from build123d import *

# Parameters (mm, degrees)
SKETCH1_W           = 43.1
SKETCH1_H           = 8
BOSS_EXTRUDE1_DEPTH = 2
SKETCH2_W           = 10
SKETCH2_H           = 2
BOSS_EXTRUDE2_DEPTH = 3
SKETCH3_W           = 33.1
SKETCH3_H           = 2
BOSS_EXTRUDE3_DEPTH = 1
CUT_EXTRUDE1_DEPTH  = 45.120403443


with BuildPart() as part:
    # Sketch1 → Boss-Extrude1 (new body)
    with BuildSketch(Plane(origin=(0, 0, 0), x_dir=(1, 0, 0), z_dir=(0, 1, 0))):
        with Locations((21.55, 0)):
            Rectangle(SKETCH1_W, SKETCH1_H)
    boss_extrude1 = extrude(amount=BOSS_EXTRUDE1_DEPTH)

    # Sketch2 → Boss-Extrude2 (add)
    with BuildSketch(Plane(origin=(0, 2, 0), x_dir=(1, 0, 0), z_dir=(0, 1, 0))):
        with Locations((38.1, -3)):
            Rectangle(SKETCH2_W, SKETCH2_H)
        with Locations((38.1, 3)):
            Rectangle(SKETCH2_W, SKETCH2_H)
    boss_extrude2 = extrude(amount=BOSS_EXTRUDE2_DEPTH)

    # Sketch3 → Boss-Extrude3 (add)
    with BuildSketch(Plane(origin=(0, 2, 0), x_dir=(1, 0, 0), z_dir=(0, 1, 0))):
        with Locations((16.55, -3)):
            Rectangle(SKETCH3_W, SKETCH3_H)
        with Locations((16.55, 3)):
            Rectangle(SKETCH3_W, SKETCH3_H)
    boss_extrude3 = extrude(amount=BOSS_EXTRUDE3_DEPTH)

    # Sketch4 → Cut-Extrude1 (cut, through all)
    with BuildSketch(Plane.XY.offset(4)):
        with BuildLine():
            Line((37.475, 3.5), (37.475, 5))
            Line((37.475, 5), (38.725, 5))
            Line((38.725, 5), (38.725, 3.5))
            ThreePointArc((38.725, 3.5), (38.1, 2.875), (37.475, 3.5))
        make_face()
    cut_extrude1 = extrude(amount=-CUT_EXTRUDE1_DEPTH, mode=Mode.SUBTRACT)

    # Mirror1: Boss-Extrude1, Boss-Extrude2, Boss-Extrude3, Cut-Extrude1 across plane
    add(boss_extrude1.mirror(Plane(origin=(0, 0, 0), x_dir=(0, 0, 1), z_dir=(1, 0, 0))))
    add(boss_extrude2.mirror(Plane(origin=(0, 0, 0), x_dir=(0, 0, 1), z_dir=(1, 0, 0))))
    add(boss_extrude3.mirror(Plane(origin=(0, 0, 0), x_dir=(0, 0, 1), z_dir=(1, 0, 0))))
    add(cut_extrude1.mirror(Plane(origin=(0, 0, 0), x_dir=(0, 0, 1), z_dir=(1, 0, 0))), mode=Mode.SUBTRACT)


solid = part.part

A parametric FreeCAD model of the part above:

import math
import FreeCAD as App
import Part
import Sketcher

doc = App.newDocument("Part")
body = doc.addObject("PartDesign::Body", "Body")

# Sketch on XZ plane
sketch1 = doc.addObject("Sketcher::SketchObject", "Sketch")
body.addObject(sketch1)
sketch1.AttachmentSupport = (doc.XZ_Plane, [""])
sketch1.MapMode = "FlatFace"
sketch1.addGeometry(Part.LineSegment(App.Vector(0, -4, 0), App.Vector(0, 4, 0)), False)
sketch1.addGeometry(Part.LineSegment(App.Vector(0, 4, 0), App.Vector(43.1, 4, 0)), False)
sketch1.addGeometry(Part.LineSegment(App.Vector(43.1, 4, 0), App.Vector(43.1, -4, 0)), False)
sketch1.addGeometry(Part.LineSegment(App.Vector(43.1, -4, 0), App.Vector(0, -4, 0)), False)
sketch1.addConstraint(Sketcher.Constraint("Coincident", 0, 2, 1, 1))
sketch1.addConstraint(Sketcher.Constraint("Coincident", 1, 2, 2, 1))
sketch1.addConstraint(Sketcher.Constraint("Coincident", 2, 2, 3, 1))
sketch1.addConstraint(Sketcher.Constraint("Coincident", 3, 2, 0, 1))
sketch1.addConstraint(Sketcher.Constraint("Vertical", 0))
sketch1.addConstraint(Sketcher.Constraint("Horizontal", 1))
sketch1.addConstraint(Sketcher.Constraint("Vertical", 2))
sketch1.addConstraint(Sketcher.Constraint("Horizontal", 3))
sketch1.addConstraint(Sketcher.Constraint("Symmetric", 0, 2, 3, 2, -1, 1))
sketch1.addConstraint(Sketcher.Constraint("DistanceY", 0, 1, 0, 2, 8.0))
sketch1.addConstraint(Sketcher.Constraint("DistanceX", 1, 1, 1, 2, 43.1))
pad1 = doc.addObject("PartDesign::Pad", "Pad")
body.addObject(pad1)
pad1.Profile = sketch1
pad1.Length = 2
pad1.Reversed = True

# Sketch on XZ plane
sketch2 = doc.addObject("Sketcher::SketchObject", "Sketch001")
body.addObject(sketch2)
sketch2.AttachmentSupport = (doc.XZ_Plane, [""])
sketch2.MapMode = "FlatFace"
sketch2.AttachmentOffset = App.Placement(App.Vector(0, 0, -2), App.Rotation())
sketch2.addGeometry(Part.LineSegment(App.Vector(33.1, 2, 0), App.Vector(33.1, 4, 0)), False)
sketch2.addGeometry(Part.LineSegment(App.Vector(33.1, 4, 0), App.Vector(43.1, 4, 0)), False)
sketch2.addGeometry(Part.LineSegment(App.Vector(43.1, 4, 0), App.Vector(43.1, 2, 0)), False)
sketch2.addGeometry(Part.LineSegment(App.Vector(43.1, 2, 0), App.Vector(33.1, 2, 0)), False)
sketch2.addGeometry(Part.LineSegment(App.Vector(33.1, -4, 0), App.Vector(33.1, -2, 0)), False)
sketch2.addGeometry(Part.LineSegment(App.Vector(33.1, -2, 0), App.Vector(43.1, -2, 0)), False)
sketch2.addGeometry(Part.LineSegment(App.Vector(43.1, -2, 0), App.Vector(43.1, -4, 0)), False)
sketch2.addGeometry(Part.LineSegment(App.Vector(43.1, -4, 0), App.Vector(33.1, -4, 0)), False)
sketch2.addConstraint(Sketcher.Constraint("Coincident", 0, 2, 1, 1))
sketch2.addConstraint(Sketcher.Constraint("Coincident", 1, 2, 2, 1))
sketch2.addConstraint(Sketcher.Constraint("Coincident", 2, 2, 3, 1))
sketch2.addConstraint(Sketcher.Constraint("Coincident", 3, 2, 0, 1))
sketch2.addConstraint(Sketcher.Constraint("Coincident", 4, 2, 5, 1))
sketch2.addConstraint(Sketcher.Constraint("Coincident", 5, 2, 6, 1))
sketch2.addConstraint(Sketcher.Constraint("Coincident", 6, 2, 7, 1))
sketch2.addConstraint(Sketcher.Constraint("Coincident", 7, 2, 4, 1))
sketch2.addConstraint(Sketcher.Constraint("Vertical", 0))
sketch2.addConstraint(Sketcher.Constraint("Horizontal", 1))
sketch2.addConstraint(Sketcher.Constraint("Vertical", 2))
sketch2.addConstraint(Sketcher.Constraint("Horizontal", 3))
sketch2.addConstraint(Sketcher.Constraint("Vertical", 4))
sketch2.addConstraint(Sketcher.Constraint("Horizontal", 5))
sketch2.addConstraint(Sketcher.Constraint("Vertical", 6))
sketch2.addConstraint(Sketcher.Constraint("Horizontal", 7))
sketch2.addConstraint(Sketcher.Constraint("Symmetric", 3, 2, 4, 2, -1))
sketch2.addConstraint(Sketcher.Constraint("Symmetric", 1, 2, 6, 2, -1))
sketch2.addConstraint(Sketcher.Constraint("DistanceX", 1, 1, 1, 2, 10.0))
sketch2.addConstraint(Sketcher.Constraint("DistanceY", 0, 1, 0, 2, 2.0))
sketch2.addConstraint(Sketcher.Constraint("DistanceY", -1, 1, 0, 2, 4.0))
sketch2.addConstraint(Sketcher.Constraint("DistanceX", -1, 1, 0, 2, 33.1))
pad2 = doc.addObject("PartDesign::Pad", "Pad001")
body.addObject(pad2)
pad2.Profile = sketch2
pad2.Length = 3
pad2.Reversed = True

# Sketch on XZ plane
sketch3 = doc.addObject("Sketcher::SketchObject", "Sketch002")
body.addObject(sketch3)
sketch3.AttachmentSupport = (doc.XZ_Plane, [""])
sketch3.MapMode = "FlatFace"
sketch3.AttachmentOffset = App.Placement(App.Vector(0, 0, -2), App.Rotation())
sketch3.addGeometry(Part.LineSegment(App.Vector(0, 2, 0), App.Vector(0, 4, 0)), False)
sketch3.addGeometry(Part.LineSegment(App.Vector(0, 4, 0), App.Vector(33.1, 4, 0)), False)
sketch3.addGeometry(Part.LineSegment(App.Vector(33.1, 4, 0), App.Vector(33.1, 2, 0)), False)
sketch3.addGeometry(Part.LineSegment(App.Vector(33.1, 2, 0), App.Vector(0, 2, 0)), False)
sketch3.addGeometry(Part.LineSegment(App.Vector(0, -4, 0), App.Vector(0, -2, 0)), False)
sketch3.addGeometry(Part.LineSegment(App.Vector(0, -2, 0), App.Vector(33.1, -2, 0)), False)
sketch3.addGeometry(Part.LineSegment(App.Vector(33.1, -2, 0), App.Vector(33.1, -4, 0)), False)
sketch3.addGeometry(Part.LineSegment(App.Vector(33.1, -4, 0), App.Vector(0, -4, 0)), False)
sketch3.addConstraint(Sketcher.Constraint("Coincident", 0, 2, 1, 1))
sketch3.addConstraint(Sketcher.Constraint("Coincident", 1, 2, 2, 1))
sketch3.addConstraint(Sketcher.Constraint("Coincident", 2, 2, 3, 1))
sketch3.addConstraint(Sketcher.Constraint("Coincident", 3, 2, 0, 1))
sketch3.addConstraint(Sketcher.Constraint("Coincident", 4, 2, 5, 1))
sketch3.addConstraint(Sketcher.Constraint("Coincident", 5, 2, 6, 1))
sketch3.addConstraint(Sketcher.Constraint("Coincident", 6, 2, 7, 1))
sketch3.addConstraint(Sketcher.Constraint("Coincident", 7, 2, 4, 1))
sketch3.addConstraint(Sketcher.Constraint("Vertical", 0))
sketch3.addConstraint(Sketcher.Constraint("Horizontal", 1))
sketch3.addConstraint(Sketcher.Constraint("Vertical", 2))
sketch3.addConstraint(Sketcher.Constraint("Horizontal", 3))
sketch3.addConstraint(Sketcher.Constraint("Vertical", 4))
sketch3.addConstraint(Sketcher.Constraint("Horizontal", 5))
sketch3.addConstraint(Sketcher.Constraint("Vertical", 6))
sketch3.addConstraint(Sketcher.Constraint("Horizontal", 7))
sketch3.addConstraint(Sketcher.Constraint("Symmetric", 3, 2, 4, 2, -1, 1))
sketch3.addConstraint(Sketcher.Constraint("Symmetric", 1, 2, 6, 2, -1))
sketch3.addConstraint(Sketcher.Constraint("PointOnObject", 0, 2, -2))
sketch3.addConstraint(Sketcher.Constraint("DistanceY", 0, 1, 0, 2, 2.0))
sketch3.addConstraint(Sketcher.Constraint("DistanceX", 1, 1, 1, 2, 33.1))
sketch3.addConstraint(Sketcher.Constraint("DistanceY", -1, 1, 0, 2, 4.0))
pad3 = doc.addObject("PartDesign::Pad", "Pad002")
body.addObject(pad3)
pad3.Profile = sketch3
pad3.Length = 1
pad3.Reversed = True

# Sketch on XY plane
sketch4 = doc.addObject("Sketcher::SketchObject", "Sketch003")
body.addObject(sketch4)
sketch4.AttachmentSupport = (doc.XY_Plane, [""])
sketch4.MapMode = "FlatFace"
sketch4.AttachmentOffset = App.Placement(App.Vector(0, 0, 4), App.Rotation())
sketch4.addGeometry(Part.LineSegment(App.Vector(37.475, 5, 0), App.Vector(37.475, 3.5, 0)), False)
sketch4.addGeometry(Part.ArcOfCircle(Part.Circle(App.Vector(38.1, 3.5, 0), App.Vector(0, 0, 1), 0.625), math.radians(180), math.radians(360)), False)
sketch4.addGeometry(Part.LineSegment(App.Vector(38.725, 3.5, 0), App.Vector(38.725, 5, 0)), False)
sketch4.addGeometry(Part.LineSegment(App.Vector(38.725, 5, 0), App.Vector(37.475, 5, 0)), False)
sketch4.addConstraint(Sketcher.Constraint("Tangent", 0, 2, 1, 1))
sketch4.addConstraint(Sketcher.Constraint("Tangent", 1, 2, 2, 1))
sketch4.addConstraint(Sketcher.Constraint("Coincident", 2, 2, 3, 1))
sketch4.addConstraint(Sketcher.Constraint("Coincident", 3, 2, 0, 1))
sketch4.addConstraint(Sketcher.Constraint("Vertical", 0))
sketch4.addConstraint(Sketcher.Constraint("Vertical", 2))
sketch4.addConstraint(Sketcher.Constraint("Horizontal", 3))
sketch4.addConstraint(Sketcher.Constraint("DistanceY", 0, 2, 0, 1, 1.5))
sketch4.addConstraint(Sketcher.Constraint("DistanceY", -1, 1, 2, 2, 5.0))
sketch4.addConstraint(Sketcher.Constraint("Radius", 1, 0.625))
sketch4.addConstraint(Sketcher.Constraint("DistanceX", -1, 1, 1, 3, 38.1))
pocket1 = doc.addObject("PartDesign::Pocket", "Pocket")
body.addObject(pocket1)
pocket1.Profile = sketch4
pocket1.Type = "ThroughAll"
doc.recompute()

mirrored = doc.addObject("PartDesign::Mirrored", "Mirrored")
body.addObject(mirrored)
mirrored.Originals = [pad1, pad2, pad3, pocket1]
mirrored.MirrorPlane = (doc.YZ_Plane, [""])
body.Tip = mirrored

doc.recompute()
